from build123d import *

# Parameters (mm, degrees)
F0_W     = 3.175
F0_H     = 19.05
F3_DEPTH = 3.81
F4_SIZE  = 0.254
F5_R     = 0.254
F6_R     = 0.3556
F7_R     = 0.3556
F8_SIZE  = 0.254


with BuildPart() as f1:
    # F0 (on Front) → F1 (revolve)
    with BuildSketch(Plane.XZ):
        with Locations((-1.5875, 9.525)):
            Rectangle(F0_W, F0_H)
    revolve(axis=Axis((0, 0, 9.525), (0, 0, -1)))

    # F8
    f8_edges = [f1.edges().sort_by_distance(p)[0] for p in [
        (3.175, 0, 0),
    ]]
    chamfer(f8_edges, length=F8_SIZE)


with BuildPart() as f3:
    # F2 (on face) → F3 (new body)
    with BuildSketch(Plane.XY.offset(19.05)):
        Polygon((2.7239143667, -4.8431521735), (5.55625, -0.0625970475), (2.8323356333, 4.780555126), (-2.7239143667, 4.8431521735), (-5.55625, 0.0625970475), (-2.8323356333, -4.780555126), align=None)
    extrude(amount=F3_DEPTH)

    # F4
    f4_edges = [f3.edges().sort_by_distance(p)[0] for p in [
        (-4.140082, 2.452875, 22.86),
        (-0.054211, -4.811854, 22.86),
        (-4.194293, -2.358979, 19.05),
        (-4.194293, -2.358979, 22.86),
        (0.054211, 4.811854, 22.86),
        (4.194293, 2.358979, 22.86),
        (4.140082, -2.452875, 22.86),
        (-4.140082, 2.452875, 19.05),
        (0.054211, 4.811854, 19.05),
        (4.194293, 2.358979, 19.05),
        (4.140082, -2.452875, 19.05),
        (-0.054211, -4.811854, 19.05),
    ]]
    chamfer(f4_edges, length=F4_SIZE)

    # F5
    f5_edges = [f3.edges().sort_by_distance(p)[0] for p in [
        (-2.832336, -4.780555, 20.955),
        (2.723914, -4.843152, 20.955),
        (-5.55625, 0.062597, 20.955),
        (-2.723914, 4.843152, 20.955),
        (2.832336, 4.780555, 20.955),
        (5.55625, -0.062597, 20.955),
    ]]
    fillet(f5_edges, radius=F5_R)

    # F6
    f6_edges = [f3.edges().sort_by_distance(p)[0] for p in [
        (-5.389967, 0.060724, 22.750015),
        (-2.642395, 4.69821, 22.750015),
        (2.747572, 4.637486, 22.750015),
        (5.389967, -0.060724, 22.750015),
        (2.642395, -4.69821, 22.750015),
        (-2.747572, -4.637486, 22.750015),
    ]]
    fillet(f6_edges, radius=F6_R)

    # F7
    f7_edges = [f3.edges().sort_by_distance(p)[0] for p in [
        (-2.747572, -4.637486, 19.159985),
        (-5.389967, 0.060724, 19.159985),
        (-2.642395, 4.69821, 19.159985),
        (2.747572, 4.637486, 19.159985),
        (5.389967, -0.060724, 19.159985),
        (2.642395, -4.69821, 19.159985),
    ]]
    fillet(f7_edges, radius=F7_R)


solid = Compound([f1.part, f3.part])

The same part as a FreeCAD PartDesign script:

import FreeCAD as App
import Part
import Sketcher
from FreeCAD import Vector
Q = App.Units.Quantity


def edges_at(feature, points):
    """Names of the edges that pass closest to the given points."""
    edges = feature.Shape.Edges
    near = lambda p: min(range(len(edges)), key=lambda i: edges[i].distToShape(Part.Vertex(*p))[0])
    return sorted({f"Edge{near(p) + 1}" for p in points})


def add_polygon(sketch, points):
    """Adds a closed chain of lines whose ends are joined by coincident constraints."""
    first, n = sketch.GeometryCount, len(points)
    for a, b in zip(points, points[1:] + points[:1]):
        sketch.addGeometry(Part.LineSegment(App.Vector(*a, 0), App.Vector(*b, 0)), False)
    for i in range(n):
        sketch.addConstraint(Sketcher.Constraint("Coincident", first + i, 2, first + (i + 1) % n, 1))

doc = App.newDocument("Part")
body = doc.addObject("PartDesign::Body", "Body")

sketch1 = doc.addObject("Sketcher::SketchObject", "Sketch")
body.addObject(sketch1)
sketch1.AttachmentSupport = (doc.XZ_Plane, [""])
sketch1.MapMode = "FlatFace"
add_polygon(sketch1, [(-3.2, 19.1), (-3.2, 0), (0, 0), (0, 19.1)])
sketch1.addConstraint(Sketcher.Constraint("Vertical", 0))
sketch1.addConstraint(Sketcher.Constraint("Horizontal", 1))
sketch1.addConstraint(Sketcher.Constraint("Vertical", 2))
sketch1.addConstraint(Sketcher.Constraint("Horizontal", 3))
sketch1.addConstraint(Sketcher.Constraint("Coincident", 1, 2, -1, 1))
sketch1.addConstraint(Sketcher.Constraint("DistanceY", 0, 2, 0, 1, Q("0.75 in")))
sketch1.addConstraint(Sketcher.Constraint("DistanceX", 1, 1, 1, 2, Q("0.125 in")))
revolution = doc.addObject("PartDesign::Revolution", "Revolution")
body.addObject(revolution)
revolution.Profile = sketch1
revolution.ReferenceAxis = (sketch1, ["V_Axis"])
revolution.Angle = 360
doc.recompute()

chamfer = doc.addObject("PartDesign::Chamfer", "Chamfer")
body.addObject(chamfer)
chamfer.Base = (revolution, edges_at(revolution, [(3.175, 0, 0)]))
chamfer.Size = Q("0.01 in")
body2 = doc.addObject("PartDesign::Body", "Body001")

sketch2 = doc.addObject("Sketcher::SketchObject", "Sketch001")
body2.addObject(sketch2)
sketch2.AttachmentSupport = (doc.getObject("XY_Plane001"), [""])
sketch2.MapMode = "FlatFace"
sketch2.AttachmentOffset = App.Placement(Vector(0, 0, 0.75 * 25.4), App.Rotation())
add_polygon(sketch2, [(3, -5), (6, 0), (3, 5), (-3, 5), (-6, 0), (-3, -5)])
sketch2.addConstraint(Sketcher.Constraint("Symmetric", 0, 2, 3, 2, -1, 1))
sketch2.addConstraint(Sketcher.Constraint("Symmetric", 1, 2, 4, 2, -1, 1))
sketch2.addConstraint(Sketcher.Constraint("Symmetric", 2, 2, 5, 2, -1, 1))
sketch2.addConstraint(Sketcher.Constraint("Equal", 0, 1))
sketch2.addConstraint(Sketcher.Constraint("Equal", 1, 2))
sketch2.addConstraint(Sketcher.Constraint("DistanceX", -1, 1, 0, 2, Q("0.21875 in")))
sketch2.addConstraint(Sketcher.Constraint("DistanceX", 2, 2, 1, 2, Q("0.21875 in")))
sketch2.addConstraint(Sketcher.Constraint("DistanceY", 0, 2, 2, 2, Q("4.905749 mm")))
sketch2.addConstraint(Sketcher.Constraint("DistanceY", 3, 2, 1, 2, Q("4.717958 mm")))
pad1 = doc.addObject("PartDesign::Pad", "Pad")
body2.addObject(pad1)
pad1.Profile = sketch2
pad1.Length = Q("0.15 in")
doc.recompute()

chamfer2 = doc.addObject("PartDesign::Chamfer", "Chamfer001")
body2.addObject(chamfer2)
chamfer2.Base = (pad1, edges_at(pad1, [
    (-4.14, 2.453, 22.86),
    (-0.054, -4.812, 22.86),
    (-4.194, -2.359, 19.05),
    (-4.194, -2.359, 22.86),
    (0.054, 4.812, 22.86),
    (4.194, 2.359, 22.86),
    (4.14, -2.453, 22.86),
    (-4.14, 2.453, 19.05),
    (0.054, 4.812, 19.05),
    (4.194, 2.359, 19.05),
    (4.14, -2.453, 19.05),
    (-0.054, -4.812, 19.05),
]))
chamfer2.Size = Q("0.01 in")
doc.recompute()

fillet = doc.addObject("PartDesign::Fillet", "Fillet")
body2.addObject(fillet)
fillet.Base = (chamfer2, edges_at(chamfer2, [
    (-2.832, -4.781, 20.955),
    (2.724, -4.843, 20.955),
    (-5.556, 0.063, 20.955),
    (-2.724, 4.843, 20.955),
    (2.832, 4.781, 20.955),
    (5.556, -0.063, 20.955),
]))
fillet.Radius = Q("0.01 in")
doc.recompute()

fillet2 = doc.addObject("PartDesign::Fillet", "Fillet001")
body2.addObject(fillet2)
fillet2.Base = (fillet, edges_at(fillet, [
    (-5.39, 0.061, 22.75),
    (-2.642, 4.698, 22.75),
    (2.748, 4.637, 22.75),
    (5.39, -0.061, 22.75),
    (2.642, -4.698, 22.75),
    (-2.748, -4.637, 22.75),
]))
fillet2.Radius = Q("0.014 in")
doc.recompute()

fillet3 = doc.addObject("PartDesign::Fillet", "Fillet002")
body2.addObject(fillet3)
fillet3.Base = (fillet2, edges_at(fillet2, [
    (-2.748, -4.637, 19.16),
    (-5.39, 0.061, 19.16),
    (-2.642, 4.698, 19.16),
    (2.748, 4.637, 19.16),
    (5.39, -0.061, 19.16),
    (2.642, -4.698, 19.16),
]))
fillet3.Radius = Q("0.014 in")

doc.recompute()
